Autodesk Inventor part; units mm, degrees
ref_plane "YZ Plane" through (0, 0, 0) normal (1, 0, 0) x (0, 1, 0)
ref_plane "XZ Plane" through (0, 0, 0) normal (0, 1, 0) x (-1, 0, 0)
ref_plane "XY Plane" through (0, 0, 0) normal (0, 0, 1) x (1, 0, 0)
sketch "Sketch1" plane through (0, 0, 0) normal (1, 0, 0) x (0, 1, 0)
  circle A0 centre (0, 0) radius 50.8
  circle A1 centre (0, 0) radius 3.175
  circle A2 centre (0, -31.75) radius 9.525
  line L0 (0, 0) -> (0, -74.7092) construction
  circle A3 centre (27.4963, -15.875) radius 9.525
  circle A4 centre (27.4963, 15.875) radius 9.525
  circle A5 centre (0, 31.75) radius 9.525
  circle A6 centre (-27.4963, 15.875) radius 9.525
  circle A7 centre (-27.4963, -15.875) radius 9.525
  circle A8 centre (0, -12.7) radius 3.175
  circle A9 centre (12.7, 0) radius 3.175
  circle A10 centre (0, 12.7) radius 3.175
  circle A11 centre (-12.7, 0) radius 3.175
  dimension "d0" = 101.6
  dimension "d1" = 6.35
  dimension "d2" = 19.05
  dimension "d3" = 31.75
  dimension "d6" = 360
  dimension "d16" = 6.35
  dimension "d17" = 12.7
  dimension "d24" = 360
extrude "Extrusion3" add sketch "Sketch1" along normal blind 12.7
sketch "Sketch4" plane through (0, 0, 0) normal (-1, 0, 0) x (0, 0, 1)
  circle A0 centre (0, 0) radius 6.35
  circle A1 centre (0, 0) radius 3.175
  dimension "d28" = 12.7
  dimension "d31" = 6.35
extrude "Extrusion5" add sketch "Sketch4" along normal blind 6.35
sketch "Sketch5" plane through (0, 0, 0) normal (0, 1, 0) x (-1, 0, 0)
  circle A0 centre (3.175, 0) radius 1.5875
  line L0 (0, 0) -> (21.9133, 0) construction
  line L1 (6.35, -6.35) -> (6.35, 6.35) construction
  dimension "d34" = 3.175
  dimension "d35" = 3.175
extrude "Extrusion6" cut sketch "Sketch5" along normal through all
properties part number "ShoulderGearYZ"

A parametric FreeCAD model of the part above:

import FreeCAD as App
import Part
import Sketcher
from FreeCAD import Vector
Q = App.Units.Quantity

doc = App.newDocument("Part")
params = doc.addObject("Spreadsheet::Sheet", "Params")
for row, (alias, value) in enumerate([
    ("sketch1_diameter", "4 in"),
    ("sketch1_diameter2", "0.75 in"),
    ("sketch1_diameter3", "0.25 in"),
    ("pad1_length", "0.5 in"),
    ("sketch2_diameter", "0.5 in"),
    ("sketch2_diameter2", "0.25 in"),
    ("pad2_length", "0.25 in"),
    ("sketch3_diameter", "0.125 in"),
], start=1):
    params.set(f"A{row}", alias)
    params.set(f"B{row}", "=" + value)
    params.setAlias(f"B{row}", alias)

body = doc.addObject("PartDesign::Body", "Body")

# Sketch on YZ plane
sketch1 = body.newObject("Sketcher::SketchObject", "Sketch")
sketch1.AttachmentSupport = (doc.getObject("YZ_Plane"), [""])
sketch1.MapMode = "FlatFace"
sketch1.addGeometry([
    Part.Circle(Vector(0, 0, 0), Vector(0, 0, 1), 50.8),  # 0
    Part.Circle(Vector(0, -31.8, 0), Vector(0, 0, 1), 9.5),  # 1
    Part.Circle(Vector(-27.5, -15.9, 0), Vector(0, 0, 1), 9.5),  # 2
    Part.Circle(Vector(0, -12.7, 0), Vector(0, 0, 1), 3.2),  # 3
    Part.Circle(Vector(-12.7, 0, 0), Vector(0, 0, 1), 3.2),  # 4
    Part.Circle(Vector(0, 0, 0), Vector(0, 0, 1), 3.2),  # 5
    Part.Circle(Vector(12.7, 0, 0), Vector(0, 0, 1), 3.2),  # 6
    Part.Circle(Vector(27.5, -15.9, 0), Vector(0, 0, 1), 9.5),  # 7
    Part.Circle(Vector(-27.5, 15.9, 0), Vector(0, 0, 1), 9.5),  # 8
    Part.Circle(Vector(0, 12.7, 0), Vector(0, 0, 1), 3.2),  # 9
    Part.Circle(Vector(0, 31.8, 0), Vector(0, 0, 1), 9.5),  # 10
    Part.Circle(Vector(27.5, 15.9, 0), Vector(0, 0, 1), 9.5),  # 11
], False)
sketch1.addConstraint([
    Sketcher.Constraint("Coincident", 0, 3, -1, 1),
    Sketcher.Constraint("Coincident", 5, 3, -1, 1),
    Sketcher.Constraint("Equal", 1, 2),
    Sketcher.Constraint("Equal", 3, 4),
    Sketcher.Constraint("Equal", 4, 5),
    Sketcher.Constraint("Equal", 5, 6),
    Sketcher.Constraint("Equal", 2, 7),
    Sketcher.Constraint("Equal", 7, 8),
    Sketcher.Constraint("Equal", 6, 9),
    Sketcher.Constraint("Equal", 8, 10),
    Sketcher.Constraint("Equal", 10, 11),
    Sketcher.Constraint("Symmetric", 4, 3, 6, 3, -1, 1),
    Sketcher.Constraint("Symmetric", 7, 3, 8, 3, -1, 1),
    Sketcher.Constraint("Symmetric", 3, 3, 9, 3, -1, 1),
    Sketcher.Constraint("Symmetric", 1, 3, 10, 3, -1, 1),
    Sketcher.Constraint("Symmetric", 2, 3, 11, 3, -1, 1),
    Sketcher.Constraint("Symmetric", 2, 3, 7, 3, -2),
    Sketcher.Constraint("PointOnObject", 1, 3, -2),
    Sketcher.Constraint("PointOnObject", 3, 3, -2),
    Sketcher.Constraint("PointOnObject", 4, 3, -1),
    Sketcher.Constraint("Diameter", 0, Q("4 in")),
    Sketcher.Constraint("Diameter", 1, Q("0.75 in")),
    Sketcher.Constraint("Diameter", 3, Q("0.25 in")),
    Sketcher.Constraint("DistanceY", 3, 3, -1, 1, Q("0.5 in")),
    Sketcher.Constraint("DistanceX", 4, 3, -1, 1, Q("0.5 in")),
    Sketcher.Constraint("DistanceY", 1, 3, -1, 1, Q("1.25 in")),
    Sketcher.Constraint("DistanceY", 2, 3, 8, 3, Q("1.25 in")),
    Sketcher.Constraint("DistanceX", 2, 3, -1, 1, 27.4963),
])
sketch1.setExpression("Constraints[20]", "Params.sketch1_diameter")
sketch1.setExpression("Constraints[21]", "Params.sketch1_diameter2")
sketch1.setExpression("Constraints[22]", "Params.sketch1_diameter3")
pad1 = body.newObject("PartDesign::Pad", "Pad")
pad1.Profile = sketch1
pad1.setExpression("Length", "Params.pad1_length")

# Sketch on YZ plane
sketch2 = body.newObject("Sketcher::SketchObject", "Sketch001")
sketch2.AttachmentSupport = (doc.getObject("YZ_Plane"), [""])
sketch2.MapMode = "FlatFace"
sketch2.addGeometry([
    Part.Circle(Vector(0, 0, 0), Vector(0, 0, 1), 6.3),
    Part.Circle(Vector(0, 0, 0), Vector(0, 0, 1), 3.2),
], False)
sketch2.addConstraint([
    Sketcher.Constraint("Coincident", 0, 3, -1, 1),
    Sketcher.Constraint("Coincident", 1, 3, -1, 1),
    Sketcher.Constraint("Diameter", 0, Q("0.5 in")),
    Sketcher.Constraint("Diameter", 1, Q("0.25 in")),
])
sketch2.setExpression("Constraints[2]", "Params.sketch2_diameter")
sketch2.setExpression("Constraints[3]", "Params.sketch2_diameter2")
pad2 = body.newObject("PartDesign::Pad", "Pad001")
pad2.Profile = sketch2
pad2.setExpression("Length", "Params.pad2_length")
pad2.Reversed = True

# Sketch on XZ plane
sketch3 = body.newObject("Sketcher::SketchObject", "Sketch002")
sketch3.AttachmentSupport = (doc.getObject("XZ_Plane"), [""])
sketch3.MapMode = "FlatFace"
sketch3.addGeometry(Part.Circle(Vector(-3.2, 0, 0), Vector(0, 0, 1), 1.6), False)
sketch3.addConstraint([
    Sketcher.Constraint("PointOnObject", 0, 3, -1),
    Sketcher.Constraint("Diameter", 0, Q("0.125 in")),
    Sketcher.Constraint("DistanceX", 0, 3, -1, 1, Q("0.125 in")),
])
sketch3.setExpression("Constraints[1]", "Params.sketch3_diameter")
pocket1 = body.newObject("PartDesign::Pocket", "Pocket")
pocket1.Profile = sketch3
pocket1.Type = "ThroughAll"

doc.recompute()
